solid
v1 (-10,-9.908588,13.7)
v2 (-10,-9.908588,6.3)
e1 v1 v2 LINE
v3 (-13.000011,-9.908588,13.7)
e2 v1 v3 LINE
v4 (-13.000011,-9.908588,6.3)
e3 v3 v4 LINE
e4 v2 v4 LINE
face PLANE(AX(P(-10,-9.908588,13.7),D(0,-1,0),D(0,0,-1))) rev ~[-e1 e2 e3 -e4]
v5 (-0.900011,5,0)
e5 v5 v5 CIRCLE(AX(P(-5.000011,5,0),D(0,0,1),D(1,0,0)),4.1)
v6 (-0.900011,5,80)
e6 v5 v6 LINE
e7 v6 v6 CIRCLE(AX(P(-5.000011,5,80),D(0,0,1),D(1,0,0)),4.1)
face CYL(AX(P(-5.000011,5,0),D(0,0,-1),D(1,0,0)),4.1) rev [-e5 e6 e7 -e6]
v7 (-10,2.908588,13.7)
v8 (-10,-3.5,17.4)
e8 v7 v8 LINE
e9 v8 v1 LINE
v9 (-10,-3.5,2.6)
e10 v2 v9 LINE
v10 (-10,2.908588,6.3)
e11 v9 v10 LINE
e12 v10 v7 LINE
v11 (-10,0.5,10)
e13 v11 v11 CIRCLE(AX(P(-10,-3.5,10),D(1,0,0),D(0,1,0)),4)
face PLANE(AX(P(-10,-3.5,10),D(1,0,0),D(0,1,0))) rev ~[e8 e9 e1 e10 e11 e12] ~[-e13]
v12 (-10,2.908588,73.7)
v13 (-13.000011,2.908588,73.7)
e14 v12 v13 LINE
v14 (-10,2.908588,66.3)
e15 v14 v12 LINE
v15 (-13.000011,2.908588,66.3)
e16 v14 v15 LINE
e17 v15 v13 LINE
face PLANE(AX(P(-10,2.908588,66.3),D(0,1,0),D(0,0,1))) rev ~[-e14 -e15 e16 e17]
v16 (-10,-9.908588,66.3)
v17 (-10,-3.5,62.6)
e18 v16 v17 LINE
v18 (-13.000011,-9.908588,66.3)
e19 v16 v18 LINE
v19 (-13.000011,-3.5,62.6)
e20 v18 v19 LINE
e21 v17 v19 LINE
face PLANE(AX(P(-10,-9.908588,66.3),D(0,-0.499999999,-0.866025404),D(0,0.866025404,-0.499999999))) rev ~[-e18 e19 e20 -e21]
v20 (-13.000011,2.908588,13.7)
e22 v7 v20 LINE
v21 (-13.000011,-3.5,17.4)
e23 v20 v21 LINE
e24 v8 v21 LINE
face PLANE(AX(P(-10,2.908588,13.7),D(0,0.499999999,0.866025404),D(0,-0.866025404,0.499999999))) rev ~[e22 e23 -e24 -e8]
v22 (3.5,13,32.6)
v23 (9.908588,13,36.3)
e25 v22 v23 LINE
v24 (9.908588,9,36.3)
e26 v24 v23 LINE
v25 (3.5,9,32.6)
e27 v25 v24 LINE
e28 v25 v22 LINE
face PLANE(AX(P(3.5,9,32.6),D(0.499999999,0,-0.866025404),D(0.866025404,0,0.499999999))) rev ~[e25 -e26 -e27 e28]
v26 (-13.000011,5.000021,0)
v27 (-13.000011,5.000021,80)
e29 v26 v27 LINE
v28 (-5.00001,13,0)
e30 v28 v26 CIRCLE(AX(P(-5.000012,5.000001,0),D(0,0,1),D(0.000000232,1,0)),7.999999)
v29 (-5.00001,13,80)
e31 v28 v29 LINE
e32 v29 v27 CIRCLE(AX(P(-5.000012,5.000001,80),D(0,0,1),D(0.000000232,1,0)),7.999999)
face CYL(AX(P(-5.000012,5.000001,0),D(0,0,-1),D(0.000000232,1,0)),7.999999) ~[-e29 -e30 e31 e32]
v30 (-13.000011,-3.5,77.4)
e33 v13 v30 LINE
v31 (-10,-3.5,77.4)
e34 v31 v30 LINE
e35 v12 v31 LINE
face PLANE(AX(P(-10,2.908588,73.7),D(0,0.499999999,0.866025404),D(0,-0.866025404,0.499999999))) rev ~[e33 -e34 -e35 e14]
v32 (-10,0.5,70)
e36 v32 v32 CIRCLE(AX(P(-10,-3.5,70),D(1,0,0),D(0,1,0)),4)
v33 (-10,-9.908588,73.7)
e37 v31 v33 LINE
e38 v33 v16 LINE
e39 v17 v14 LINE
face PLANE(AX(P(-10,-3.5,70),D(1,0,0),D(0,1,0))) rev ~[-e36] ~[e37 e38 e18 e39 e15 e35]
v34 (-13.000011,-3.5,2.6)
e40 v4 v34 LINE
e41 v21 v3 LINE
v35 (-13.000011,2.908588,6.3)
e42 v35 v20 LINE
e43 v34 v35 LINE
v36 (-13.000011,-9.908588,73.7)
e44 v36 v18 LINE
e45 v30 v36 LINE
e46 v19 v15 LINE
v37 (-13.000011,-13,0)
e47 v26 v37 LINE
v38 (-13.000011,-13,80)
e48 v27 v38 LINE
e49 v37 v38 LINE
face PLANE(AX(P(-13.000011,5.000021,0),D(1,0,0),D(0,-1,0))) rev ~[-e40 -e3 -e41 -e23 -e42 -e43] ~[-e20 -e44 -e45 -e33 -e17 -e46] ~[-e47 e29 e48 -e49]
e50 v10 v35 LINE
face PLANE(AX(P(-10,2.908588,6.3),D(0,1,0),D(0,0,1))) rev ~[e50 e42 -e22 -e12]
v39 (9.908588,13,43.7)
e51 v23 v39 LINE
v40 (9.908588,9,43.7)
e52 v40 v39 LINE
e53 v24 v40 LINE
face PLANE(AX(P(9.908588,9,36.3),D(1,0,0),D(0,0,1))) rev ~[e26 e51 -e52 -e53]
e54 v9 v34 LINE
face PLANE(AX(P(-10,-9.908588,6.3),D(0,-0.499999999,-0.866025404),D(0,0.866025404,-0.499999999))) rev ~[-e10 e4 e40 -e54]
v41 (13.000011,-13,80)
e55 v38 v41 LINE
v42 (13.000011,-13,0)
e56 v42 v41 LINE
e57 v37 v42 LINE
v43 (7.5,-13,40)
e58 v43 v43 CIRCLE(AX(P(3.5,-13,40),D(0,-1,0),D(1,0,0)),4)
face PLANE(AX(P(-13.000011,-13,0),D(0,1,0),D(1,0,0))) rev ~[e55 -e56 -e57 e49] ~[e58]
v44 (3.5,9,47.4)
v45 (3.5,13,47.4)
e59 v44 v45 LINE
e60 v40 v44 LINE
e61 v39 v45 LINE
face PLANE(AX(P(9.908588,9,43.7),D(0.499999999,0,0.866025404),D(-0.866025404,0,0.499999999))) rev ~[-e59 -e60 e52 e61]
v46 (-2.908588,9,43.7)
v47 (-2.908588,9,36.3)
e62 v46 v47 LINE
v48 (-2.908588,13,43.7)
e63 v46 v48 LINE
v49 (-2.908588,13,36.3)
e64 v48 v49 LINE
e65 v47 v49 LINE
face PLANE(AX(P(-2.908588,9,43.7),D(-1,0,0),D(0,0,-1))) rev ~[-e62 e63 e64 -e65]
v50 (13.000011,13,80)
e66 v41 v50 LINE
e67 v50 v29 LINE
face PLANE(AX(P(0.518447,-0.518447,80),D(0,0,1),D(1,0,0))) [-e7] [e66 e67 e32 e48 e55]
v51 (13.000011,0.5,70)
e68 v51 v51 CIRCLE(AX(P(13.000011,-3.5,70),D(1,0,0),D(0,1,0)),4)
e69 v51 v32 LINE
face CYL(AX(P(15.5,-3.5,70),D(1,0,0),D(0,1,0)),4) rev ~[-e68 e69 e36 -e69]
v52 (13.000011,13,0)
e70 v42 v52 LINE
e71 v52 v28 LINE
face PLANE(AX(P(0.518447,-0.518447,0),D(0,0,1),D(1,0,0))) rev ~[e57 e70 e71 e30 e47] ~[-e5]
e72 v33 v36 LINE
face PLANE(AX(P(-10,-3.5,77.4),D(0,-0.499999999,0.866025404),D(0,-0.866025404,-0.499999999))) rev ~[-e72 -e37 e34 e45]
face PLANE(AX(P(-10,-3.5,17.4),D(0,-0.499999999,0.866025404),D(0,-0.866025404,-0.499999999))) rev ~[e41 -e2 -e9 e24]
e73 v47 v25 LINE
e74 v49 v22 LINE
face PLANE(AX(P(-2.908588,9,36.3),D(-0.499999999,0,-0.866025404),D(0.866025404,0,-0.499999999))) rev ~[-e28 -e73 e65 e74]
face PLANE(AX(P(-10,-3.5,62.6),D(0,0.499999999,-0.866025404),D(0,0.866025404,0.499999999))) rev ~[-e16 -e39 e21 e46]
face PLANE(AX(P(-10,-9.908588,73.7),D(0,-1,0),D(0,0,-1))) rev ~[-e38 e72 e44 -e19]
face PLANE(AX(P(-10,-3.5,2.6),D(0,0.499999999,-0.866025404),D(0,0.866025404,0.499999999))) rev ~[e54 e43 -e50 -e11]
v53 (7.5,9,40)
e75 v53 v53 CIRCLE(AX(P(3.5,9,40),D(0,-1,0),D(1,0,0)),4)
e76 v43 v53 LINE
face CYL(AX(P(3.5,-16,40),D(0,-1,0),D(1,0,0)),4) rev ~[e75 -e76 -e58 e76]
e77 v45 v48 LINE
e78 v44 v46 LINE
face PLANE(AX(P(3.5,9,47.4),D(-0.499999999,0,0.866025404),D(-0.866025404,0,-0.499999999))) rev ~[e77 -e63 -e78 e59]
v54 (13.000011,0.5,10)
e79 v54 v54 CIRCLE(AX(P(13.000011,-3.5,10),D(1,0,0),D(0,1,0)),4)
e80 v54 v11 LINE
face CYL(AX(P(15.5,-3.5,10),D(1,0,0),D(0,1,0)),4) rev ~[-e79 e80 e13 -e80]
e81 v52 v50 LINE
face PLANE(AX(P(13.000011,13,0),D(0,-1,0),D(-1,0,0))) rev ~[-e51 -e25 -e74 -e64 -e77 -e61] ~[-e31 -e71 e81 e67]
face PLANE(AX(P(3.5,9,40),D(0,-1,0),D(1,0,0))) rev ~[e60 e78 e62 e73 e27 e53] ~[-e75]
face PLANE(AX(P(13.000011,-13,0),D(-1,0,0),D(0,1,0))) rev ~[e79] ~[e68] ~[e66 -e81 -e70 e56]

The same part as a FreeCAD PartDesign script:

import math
import FreeCAD as App
import Part
import Sketcher
Q = App.Units.Quantity

doc = App.newDocument("Part")
body = doc.addObject("PartDesign::Body", "Body")

sketch1 = body.newObject("Sketcher::SketchObject", "Sketch")
sketch1.AttachmentSupport = (doc.getObject("XZ_Plane"), [""])
sketch1.MapMode = "FlatFace"
sketch1.AttachmentOffset = App.Placement(App.Vector(0, 0, 16), App.Rotation())
sketch1.addGeometry(Part.Circle(App.Vector(3.5, 40, 0), App.Vector(0, 0, 1), 4), False)
sketch1.addConstraint([
    Sketcher.Constraint("Diameter", 0, Q("8 mm")),
    Sketcher.Constraint("DistanceY", -1, 1, 0, 3, Q("40 mm")),
    Sketcher.Constraint("DistanceX", -1, 1, 0, 3, Q("3.5 mm")),
])
pad1 = body.newObject("PartDesign::Pad", "Pad")
pad1.Profile = sketch1
pad1.Length = 31
pad1.Reversed = True
body2 = doc.addObject("PartDesign::Body", "Body001")
body2.AllowCompound = True

sketch2 = body2.newObject("Sketcher::SketchObject", "Sketch001")
sketch2.AttachmentSupport = (doc.getObject("YZ_Plane001"), [""])
sketch2.MapMode = "FlatFace"
sketch2.AttachmentOffset = App.Placement(App.Vector(0, 0, 15.5), App.Rotation())
sketch2.addGeometry([
    Part.Circle(App.Vector(-3.5, 70, 0), App.Vector(0, 0, 1), 4),
    Part.Circle(App.Vector(-3.5, 10, 0), App.Vector(0, 0, 1), 4),
], False)
sketch2.addConstraint([
    Sketcher.Constraint("Equal", 0, 1),
    Sketcher.Constraint("Vertical", 0, 3, 1, 3),
    Sketcher.Constraint("Diameter", 0, Q("8 mm")),
    Sketcher.Constraint("DistanceY", -1, 1, 0, 3, Q("70 mm")),
    Sketcher.Constraint("DistanceY", -1, 1, 1, 3, Q("10 mm")),
    Sketcher.Constraint("DistanceX", 0, 3, -1, 1, Q("3.5 mm")),
])
pad2 = body2.newObject("PartDesign::Pad", "Pad001")
pad2.Profile = sketch2
pad2.Length = 31
pad2.Reversed = True
body3 = doc.addObject("PartDesign::Body", "Body002")
body3.AllowCompound = True

sketch3 = body3.newObject("Sketcher::SketchObject", "Sketch002")
sketch3.AttachmentSupport = (doc.getObject("YZ_Plane002"), [""])
sketch3.MapMode = "FlatFace"
sketch3.AttachmentOffset = App.Placement(App.Vector(0, 0, -10), App.Rotation())
sketch3.addGeometry([
    Part.LineSegment(App.Vector(2.908588, 66.3, 0), App.Vector(2.908588, 73.7, 0)),
    Part.LineSegment(App.Vector(2.908588, 73.7, 0), App.Vector(-3.5, 77.4, 0)),
    Part.LineSegment(App.Vector(-3.5, 77.4, 0), App.Vector(-9.908588, 73.7, 0)),
    Part.LineSegment(App.Vector(-9.908588, 73.7, 0), App.Vector(-9.908588, 66.3, 0)),
    Part.LineSegment(App.Vector(-9.908588, 66.3, 0), App.Vector(-3.5, 62.6, 0)),
    Part.LineSegment(App.Vector(-3.5, 62.6, 0), App.Vector(2.908588, 66.3, 0)),
    Part.LineSegment(App.Vector(-3.5, 2.6, 0), App.Vector(2.908588, 6.3, 0)),
    Part.LineSegment(App.Vector(2.908588, 6.3, 0), App.Vector(2.908588, 13.7, 0)),
    Part.LineSegment(App.Vector(2.908588, 13.7, 0), App.Vector(-3.5, 17.4, 0)),
    Part.LineSegment(App.Vector(-3.5, 17.4, 0), App.Vector(-9.908588, 13.7, 0)),
    Part.LineSegment(App.Vector(-9.908588, 13.7, 0), App.Vector(-9.908588, 6.3, 0)),
    Part.LineSegment(App.Vector(-9.908588, 6.3, 0), App.Vector(-3.5, 2.6, 0)),
], False)
sketch3.addConstraint([
    Sketcher.Constraint("Coincident", 0, 2, 1, 1),
    Sketcher.Constraint("Coincident", 1, 2, 2, 1),
    Sketcher.Constraint("Coincident", 2, 2, 3, 1),
    Sketcher.Constraint("Coincident", 3, 2, 4, 1),
    Sketcher.Constraint("Coincident", 4, 2, 5, 1),
    Sketcher.Constraint("Coincident", 5, 2, 0, 1),
    Sketcher.Constraint("Coincident", 6, 2, 7, 1),
    Sketcher.Constraint("Coincident", 7, 2, 8, 1),
    Sketcher.Constraint("Coincident", 8, 2, 9, 1),
    Sketcher.Constraint("Coincident", 9, 2, 10, 1),
    Sketcher.Constraint("Coincident", 10, 2, 11, 1),
    Sketcher.Constraint("Coincident", 11, 2, 6, 1),
    Sketcher.Constraint("Vertical", 0),
    Sketcher.Constraint("Vertical", 3),
    Sketcher.Constraint("Vertical", 7),
    Sketcher.Constraint("Vertical", 10),
    Sketcher.Constraint("Parallel", 1, 4),
    Sketcher.Constraint("Parallel", 2, 5),
    Sketcher.Constraint("Parallel", 5, 6),
    Sketcher.Constraint("Parallel", 4, 8),
    Sketcher.Constraint("Parallel", 6, 9),
    Sketcher.Constraint("Parallel", 8, 11),
    Sketcher.Constraint("Horizontal", 0, 2, 2, 2),
    Sketcher.Constraint("Horizontal", 3, 2, 5, 2),
    Sketcher.Constraint("Horizontal", 7, 2, 9, 2),
    Sketcher.Constraint("Horizontal", 6, 2, 10, 2),
    Sketcher.Constraint("Vertical", 1, 2, 4, 2),
    Sketcher.Constraint("Vertical", 5, 2, 6, 2),
    Sketcher.Constraint("Vertical", 4, 2, 8, 2),
    Sketcher.Constraint("Equal", 3, 7),
    Sketcher.Constraint("Angle", 1, Q("150 deg")),
    Sketcher.Constraint("DistanceY", 0, 1, 0, 2, Q("7.4 mm")),
    Sketcher.Constraint("DistanceY", 6, 2, 5, 2, Q("60 mm")),
    Sketcher.Constraint("Distance", 1, Q("7.4 mm")),
    Sketcher.Constraint("DistanceY", -1, 1, 0, 2, Q("73.7 mm")),
    Sketcher.Constraint("DistanceX", 1, 2, -1, 1, Q("3.5 mm")),
])
pad3 = body3.newObject("PartDesign::Pad", "Pad002")
pad3.Profile = sketch3
pad3.Length = 4
pad3.Reversed = True
body4 = doc.addObject("PartDesign::Body", "Body003")
body4.AllowCompound = True

sketch4 = body4.newObject("Sketcher::SketchObject", "Sketch003")
sketch4.AttachmentSupport = (doc.getObject("XZ_Plane003"), [""])
sketch4.MapMode = "FlatFace"
sketch4.AttachmentOffset = App.Placement(App.Vector(0, 0, -9), App.Rotation())
sketch4.addGeometry([
    Part.LineSegment(App.Vector(9.908588, 36.3, 0), App.Vector(9.908588, 43.7, 0)),
    Part.LineSegment(App.Vector(9.908588, 43.7, 0), App.Vector(3.5, 47.4, 0)),
    Part.LineSegment(App.Vector(3.5, 47.4, 0), App.Vector(-2.908588, 43.7, 0)),
    Part.LineSegment(App.Vector(-2.908588, 43.7, 0), App.Vector(-2.908588, 36.3, 0)),
    Part.LineSegment(App.Vector(-2.908588, 36.3, 0), App.Vector(3.5, 32.6, 0)),
    Part.LineSegment(App.Vector(3.5, 32.6, 0), App.Vector(9.908588, 36.3, 0)),
], False)
sketch4.addConstraint([
    Sketcher.Constraint("Coincident", 0, 2, 1, 1),
    Sketcher.Constraint("Coincident", 1, 2, 2, 1),
    Sketcher.Constraint("Coincident", 2, 2, 3, 1),
    Sketcher.Constraint("Coincident", 3, 2, 4, 1),
    Sketcher.Constraint("Coincident", 4, 2, 5, 1),
    Sketcher.Constraint("Coincident", 5, 2, 0, 1),
    Sketcher.Constraint("Vertical", 0),
    Sketcher.Constraint("Vertical", 3),
    Sketcher.Constraint("Parallel", 1, 4),
    Sketcher.Constraint("Parallel", 2, 5),
    Sketcher.Constraint("Horizontal", 0, 2, 2, 2),
    Sketcher.Constraint("Horizontal", 3, 2, 5, 2),
    Sketcher.Constraint("Vertical", 1, 2, 4, 2),
    Sketcher.Constraint("Angle", 1, Q("150 deg")),
    Sketcher.Constraint("DistanceY", 0, 1, 0, 2, Q("7.4 mm")),
    Sketcher.Constraint("Distance", 1, Q("7.4 mm")),
    Sketcher.Constraint("DistanceY", -1, 1, 0, 2, Q("43.7 mm")),
    Sketcher.Constraint("DistanceX", -1, 1, 1, 2, Q("3.5 mm")),
])
pad4 = body4.newObject("PartDesign::Pad", "Pad003")
pad4.Profile = sketch4
pad4.Length = 4
pad4.Reversed = True
doc.recompute()

boolean = body4.newObject("PartDesign::Boolean", "Boolean")
boolean.Type = "Fuse"
boolean.addObjects([body])
doc.recompute()

boolean2 = body4.newObject("PartDesign::Boolean", "Boolean001")
boolean2.Type = "Fuse"
boolean2.addObjects([body2])
doc.recompute()

boolean3 = body4.newObject("PartDesign::Boolean", "Boolean002")
boolean3.Type = "Fuse"
boolean3.addObjects([body3])
body5 = doc.addObject("PartDesign::Body", "Body004")

sketch5 = body5.newObject("Sketcher::SketchObject", "Sketch004")
sketch5.AttachmentSupport = (doc.getObject("XY_Plane004"), [""])
sketch5.MapMode = "FlatFace"
sketch5.addGeometry([
    Part.LineSegment(App.Vector(-13.000011, 5.000021, 0), App.Vector(-13.000011, -13, 0)),
    Part.LineSegment(App.Vector(-13.000011, -13, 0), App.Vector(13.000011, -13, 0)),
    Part.LineSegment(App.Vector(13.000011, -13, 0), App.Vector(13.000011, 13, 0)),
    Part.LineSegment(App.Vector(13.000011, 13, 0), App.Vector(-5.00001, 13, 0)),
    Part.ArcOfCircle(Part.Circle(App.Vector(-5.000012, 5.000001, 0), App.Vector(0, 0, 1), 7.999999), math.radians(89.999987), math.radians(179.999856)),
    Part.Circle(App.Vector(-5.000011, 5, 0), App.Vector(0, 0, 1), 4.1),
], False)
sketch5.addConstraint([
    Sketcher.Constraint("Coincident", 0, 2, 1, 1),
    Sketcher.Constraint("Coincident", 1, 2, 2, 1),
    Sketcher.Constraint("Coincident", 2, 2, 3, 1),
    Sketcher.Constraint("Tangent", 3, 2, 4, 1),
    Sketcher.Constraint("Coincident", 4, 2, 0, 1),
    Sketcher.Constraint("Vertical", 0),
    Sketcher.Constraint("Horizontal", 1),
    Sketcher.Constraint("Vertical", 2),
    Sketcher.Constraint("Horizontal", 3),
    Sketcher.Constraint("Coincident", 5, 3, 4, 3),
    Sketcher.Constraint("Symmetric", 0, 2, 2, 2, -1, 1),
    Sketcher.Constraint("Equal", 3, 0),
    Sketcher.Constraint("Radius", 4, Q("7.999999 mm")),
    Sketcher.Constraint("Diameter", 5, Q("8.2 mm")),
    Sketcher.Constraint("DistanceY", 2, 1, 2, 2, Q("26 mm")),
    Sketcher.Constraint("DistanceX", 3, 2, 3, 1, Q("18.000021 mm")),
])
pad5 = body5.newObject("PartDesign::Pad", "Pad004")
pad5.Profile = sketch5
pad5.Length = 80
doc.recompute()

boolean4 = body5.newObject("PartDesign::Boolean", "Boolean003")
boolean4.Type = "Cut"
boolean4.addObjects([body4])

doc.recompute()
